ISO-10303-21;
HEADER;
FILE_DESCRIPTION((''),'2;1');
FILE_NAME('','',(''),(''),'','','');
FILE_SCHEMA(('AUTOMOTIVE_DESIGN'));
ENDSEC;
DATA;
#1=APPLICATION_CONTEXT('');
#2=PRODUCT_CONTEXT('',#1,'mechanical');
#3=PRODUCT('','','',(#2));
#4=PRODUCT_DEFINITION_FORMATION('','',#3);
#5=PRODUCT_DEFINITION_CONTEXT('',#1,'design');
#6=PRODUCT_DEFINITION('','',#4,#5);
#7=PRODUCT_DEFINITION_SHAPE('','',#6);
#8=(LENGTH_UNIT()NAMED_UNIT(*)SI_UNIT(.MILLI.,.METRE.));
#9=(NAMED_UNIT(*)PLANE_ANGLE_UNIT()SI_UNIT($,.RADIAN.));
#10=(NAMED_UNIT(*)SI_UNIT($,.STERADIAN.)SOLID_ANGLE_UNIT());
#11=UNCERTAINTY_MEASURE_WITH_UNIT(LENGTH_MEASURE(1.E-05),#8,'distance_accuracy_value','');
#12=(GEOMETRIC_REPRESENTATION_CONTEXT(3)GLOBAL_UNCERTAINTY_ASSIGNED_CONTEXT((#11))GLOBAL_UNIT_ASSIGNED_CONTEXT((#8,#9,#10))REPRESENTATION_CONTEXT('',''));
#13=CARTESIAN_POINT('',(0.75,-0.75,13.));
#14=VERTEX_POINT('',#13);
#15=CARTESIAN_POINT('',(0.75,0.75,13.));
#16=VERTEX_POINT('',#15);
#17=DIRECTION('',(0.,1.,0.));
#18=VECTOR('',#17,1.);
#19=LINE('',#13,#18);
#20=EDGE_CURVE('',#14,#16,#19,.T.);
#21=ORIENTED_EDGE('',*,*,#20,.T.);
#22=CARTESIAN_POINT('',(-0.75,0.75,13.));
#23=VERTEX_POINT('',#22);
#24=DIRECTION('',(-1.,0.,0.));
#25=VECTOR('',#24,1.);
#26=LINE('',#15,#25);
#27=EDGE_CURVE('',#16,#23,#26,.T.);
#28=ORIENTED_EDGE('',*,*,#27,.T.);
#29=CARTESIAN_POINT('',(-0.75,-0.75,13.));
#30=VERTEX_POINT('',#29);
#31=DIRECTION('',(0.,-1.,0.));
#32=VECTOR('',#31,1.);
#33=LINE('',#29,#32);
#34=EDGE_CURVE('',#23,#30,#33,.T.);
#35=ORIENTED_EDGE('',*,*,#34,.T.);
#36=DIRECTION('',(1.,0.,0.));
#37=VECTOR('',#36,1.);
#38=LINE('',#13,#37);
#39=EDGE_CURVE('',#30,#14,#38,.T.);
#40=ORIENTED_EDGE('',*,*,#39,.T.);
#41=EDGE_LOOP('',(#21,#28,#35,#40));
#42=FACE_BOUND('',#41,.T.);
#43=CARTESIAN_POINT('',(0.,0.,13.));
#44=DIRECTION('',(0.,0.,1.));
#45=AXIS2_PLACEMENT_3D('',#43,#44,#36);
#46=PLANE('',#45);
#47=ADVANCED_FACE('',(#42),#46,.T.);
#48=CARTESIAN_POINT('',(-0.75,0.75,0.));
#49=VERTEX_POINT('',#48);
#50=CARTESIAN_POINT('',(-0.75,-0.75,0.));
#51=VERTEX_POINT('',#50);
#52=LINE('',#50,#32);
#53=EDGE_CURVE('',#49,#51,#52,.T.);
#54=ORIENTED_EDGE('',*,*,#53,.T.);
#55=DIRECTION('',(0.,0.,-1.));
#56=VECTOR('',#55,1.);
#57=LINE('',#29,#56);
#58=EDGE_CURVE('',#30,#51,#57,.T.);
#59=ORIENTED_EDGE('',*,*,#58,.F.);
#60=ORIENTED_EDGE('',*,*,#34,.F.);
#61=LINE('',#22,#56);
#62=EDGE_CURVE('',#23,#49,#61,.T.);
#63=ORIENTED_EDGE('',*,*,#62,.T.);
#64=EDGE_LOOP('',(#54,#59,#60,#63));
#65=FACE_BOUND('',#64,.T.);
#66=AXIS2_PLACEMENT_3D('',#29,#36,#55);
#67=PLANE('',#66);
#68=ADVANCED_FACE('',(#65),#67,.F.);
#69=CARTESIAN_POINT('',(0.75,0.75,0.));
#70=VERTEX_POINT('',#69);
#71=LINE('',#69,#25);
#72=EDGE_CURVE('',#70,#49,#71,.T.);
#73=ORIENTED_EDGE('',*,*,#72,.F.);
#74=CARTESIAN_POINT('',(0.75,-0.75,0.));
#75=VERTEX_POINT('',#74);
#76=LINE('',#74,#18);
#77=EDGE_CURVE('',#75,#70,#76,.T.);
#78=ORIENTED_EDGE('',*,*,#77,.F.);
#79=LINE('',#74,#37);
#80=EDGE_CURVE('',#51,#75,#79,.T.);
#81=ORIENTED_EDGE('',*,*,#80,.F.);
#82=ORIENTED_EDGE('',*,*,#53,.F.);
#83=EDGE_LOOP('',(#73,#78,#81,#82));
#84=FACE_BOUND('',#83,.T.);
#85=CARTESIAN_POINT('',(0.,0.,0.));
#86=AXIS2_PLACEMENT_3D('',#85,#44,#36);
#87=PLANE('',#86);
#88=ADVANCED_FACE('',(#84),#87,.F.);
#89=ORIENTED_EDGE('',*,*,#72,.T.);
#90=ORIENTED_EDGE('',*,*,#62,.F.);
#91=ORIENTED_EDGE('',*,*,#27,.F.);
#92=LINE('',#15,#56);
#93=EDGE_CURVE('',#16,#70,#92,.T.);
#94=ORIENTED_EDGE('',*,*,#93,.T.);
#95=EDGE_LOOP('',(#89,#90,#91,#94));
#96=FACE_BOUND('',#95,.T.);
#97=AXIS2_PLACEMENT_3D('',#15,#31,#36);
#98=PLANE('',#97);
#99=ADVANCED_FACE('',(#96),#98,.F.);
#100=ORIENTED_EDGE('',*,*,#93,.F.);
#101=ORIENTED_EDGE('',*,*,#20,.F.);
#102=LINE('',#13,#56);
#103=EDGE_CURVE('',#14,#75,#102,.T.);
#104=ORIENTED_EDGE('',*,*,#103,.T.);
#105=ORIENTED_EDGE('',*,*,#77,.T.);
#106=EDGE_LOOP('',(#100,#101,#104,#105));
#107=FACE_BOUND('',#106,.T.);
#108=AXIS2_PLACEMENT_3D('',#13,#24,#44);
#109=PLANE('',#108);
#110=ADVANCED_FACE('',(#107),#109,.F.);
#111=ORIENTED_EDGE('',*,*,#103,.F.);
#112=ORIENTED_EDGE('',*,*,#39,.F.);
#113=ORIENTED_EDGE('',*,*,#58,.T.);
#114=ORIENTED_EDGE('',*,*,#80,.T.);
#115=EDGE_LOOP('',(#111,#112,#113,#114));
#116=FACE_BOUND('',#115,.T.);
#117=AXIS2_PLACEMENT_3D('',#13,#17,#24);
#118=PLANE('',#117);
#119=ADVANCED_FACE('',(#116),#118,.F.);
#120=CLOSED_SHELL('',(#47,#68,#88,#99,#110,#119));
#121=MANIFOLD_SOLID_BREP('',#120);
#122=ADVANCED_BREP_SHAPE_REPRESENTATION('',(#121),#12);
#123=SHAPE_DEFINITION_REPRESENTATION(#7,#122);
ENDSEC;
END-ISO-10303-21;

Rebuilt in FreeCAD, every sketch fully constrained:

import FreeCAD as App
import Part
import Sketcher
Q = App.Units.Quantity

doc = App.newDocument("Part")
body = doc.addObject("PartDesign::Body", "Body")

sketch1 = body.newObject("Sketcher::SketchObject", "Sketch")
sketch1.AttachmentSupport = (doc.getObject("XY_Plane"), [""])
sketch1.MapMode = "FlatFace"
sketch1.addGeometry([
    Part.LineSegment(App.Vector(-0.75, 0.75, 0), App.Vector(-0.75, -0.75, 0)),
    Part.LineSegment(App.Vector(-0.75, -0.75, 0), App.Vector(0.75, -0.75, 0)),
    Part.LineSegment(App.Vector(0.75, -0.75, 0), App.Vector(0.75, 0.75, 0)),
    Part.LineSegment(App.Vector(0.75, 0.75, 0), App.Vector(-0.75, 0.75, 0)),
], False)
sketch1.addConstraint([
    Sketcher.Constraint("Coincident", 0, 2, 1, 1),
    Sketcher.Constraint("Coincident", 1, 2, 2, 1),
    Sketcher.Constraint("Coincident", 2, 2, 3, 1),
    Sketcher.Constraint("Coincident", 3, 2, 0, 1),
    Sketcher.Constraint("Vertical", 0),
    Sketcher.Constraint("Horizontal", 1),
    Sketcher.Constraint("Vertical", 2),
    Sketcher.Constraint("Horizontal", 3),
    Sketcher.Constraint("Symmetric", 0, 2, 2, 2, -1, 1),
    Sketcher.Constraint("Equal", 3, 0),
    Sketcher.Constraint("DistanceX", 1, 1, 1, 2, Q("1.5 mm")),
])
pad1 = body.newObject("PartDesign::Pad", "Pad")
pad1.Profile = sketch1
pad1.Length = 13

doc.recompute()
